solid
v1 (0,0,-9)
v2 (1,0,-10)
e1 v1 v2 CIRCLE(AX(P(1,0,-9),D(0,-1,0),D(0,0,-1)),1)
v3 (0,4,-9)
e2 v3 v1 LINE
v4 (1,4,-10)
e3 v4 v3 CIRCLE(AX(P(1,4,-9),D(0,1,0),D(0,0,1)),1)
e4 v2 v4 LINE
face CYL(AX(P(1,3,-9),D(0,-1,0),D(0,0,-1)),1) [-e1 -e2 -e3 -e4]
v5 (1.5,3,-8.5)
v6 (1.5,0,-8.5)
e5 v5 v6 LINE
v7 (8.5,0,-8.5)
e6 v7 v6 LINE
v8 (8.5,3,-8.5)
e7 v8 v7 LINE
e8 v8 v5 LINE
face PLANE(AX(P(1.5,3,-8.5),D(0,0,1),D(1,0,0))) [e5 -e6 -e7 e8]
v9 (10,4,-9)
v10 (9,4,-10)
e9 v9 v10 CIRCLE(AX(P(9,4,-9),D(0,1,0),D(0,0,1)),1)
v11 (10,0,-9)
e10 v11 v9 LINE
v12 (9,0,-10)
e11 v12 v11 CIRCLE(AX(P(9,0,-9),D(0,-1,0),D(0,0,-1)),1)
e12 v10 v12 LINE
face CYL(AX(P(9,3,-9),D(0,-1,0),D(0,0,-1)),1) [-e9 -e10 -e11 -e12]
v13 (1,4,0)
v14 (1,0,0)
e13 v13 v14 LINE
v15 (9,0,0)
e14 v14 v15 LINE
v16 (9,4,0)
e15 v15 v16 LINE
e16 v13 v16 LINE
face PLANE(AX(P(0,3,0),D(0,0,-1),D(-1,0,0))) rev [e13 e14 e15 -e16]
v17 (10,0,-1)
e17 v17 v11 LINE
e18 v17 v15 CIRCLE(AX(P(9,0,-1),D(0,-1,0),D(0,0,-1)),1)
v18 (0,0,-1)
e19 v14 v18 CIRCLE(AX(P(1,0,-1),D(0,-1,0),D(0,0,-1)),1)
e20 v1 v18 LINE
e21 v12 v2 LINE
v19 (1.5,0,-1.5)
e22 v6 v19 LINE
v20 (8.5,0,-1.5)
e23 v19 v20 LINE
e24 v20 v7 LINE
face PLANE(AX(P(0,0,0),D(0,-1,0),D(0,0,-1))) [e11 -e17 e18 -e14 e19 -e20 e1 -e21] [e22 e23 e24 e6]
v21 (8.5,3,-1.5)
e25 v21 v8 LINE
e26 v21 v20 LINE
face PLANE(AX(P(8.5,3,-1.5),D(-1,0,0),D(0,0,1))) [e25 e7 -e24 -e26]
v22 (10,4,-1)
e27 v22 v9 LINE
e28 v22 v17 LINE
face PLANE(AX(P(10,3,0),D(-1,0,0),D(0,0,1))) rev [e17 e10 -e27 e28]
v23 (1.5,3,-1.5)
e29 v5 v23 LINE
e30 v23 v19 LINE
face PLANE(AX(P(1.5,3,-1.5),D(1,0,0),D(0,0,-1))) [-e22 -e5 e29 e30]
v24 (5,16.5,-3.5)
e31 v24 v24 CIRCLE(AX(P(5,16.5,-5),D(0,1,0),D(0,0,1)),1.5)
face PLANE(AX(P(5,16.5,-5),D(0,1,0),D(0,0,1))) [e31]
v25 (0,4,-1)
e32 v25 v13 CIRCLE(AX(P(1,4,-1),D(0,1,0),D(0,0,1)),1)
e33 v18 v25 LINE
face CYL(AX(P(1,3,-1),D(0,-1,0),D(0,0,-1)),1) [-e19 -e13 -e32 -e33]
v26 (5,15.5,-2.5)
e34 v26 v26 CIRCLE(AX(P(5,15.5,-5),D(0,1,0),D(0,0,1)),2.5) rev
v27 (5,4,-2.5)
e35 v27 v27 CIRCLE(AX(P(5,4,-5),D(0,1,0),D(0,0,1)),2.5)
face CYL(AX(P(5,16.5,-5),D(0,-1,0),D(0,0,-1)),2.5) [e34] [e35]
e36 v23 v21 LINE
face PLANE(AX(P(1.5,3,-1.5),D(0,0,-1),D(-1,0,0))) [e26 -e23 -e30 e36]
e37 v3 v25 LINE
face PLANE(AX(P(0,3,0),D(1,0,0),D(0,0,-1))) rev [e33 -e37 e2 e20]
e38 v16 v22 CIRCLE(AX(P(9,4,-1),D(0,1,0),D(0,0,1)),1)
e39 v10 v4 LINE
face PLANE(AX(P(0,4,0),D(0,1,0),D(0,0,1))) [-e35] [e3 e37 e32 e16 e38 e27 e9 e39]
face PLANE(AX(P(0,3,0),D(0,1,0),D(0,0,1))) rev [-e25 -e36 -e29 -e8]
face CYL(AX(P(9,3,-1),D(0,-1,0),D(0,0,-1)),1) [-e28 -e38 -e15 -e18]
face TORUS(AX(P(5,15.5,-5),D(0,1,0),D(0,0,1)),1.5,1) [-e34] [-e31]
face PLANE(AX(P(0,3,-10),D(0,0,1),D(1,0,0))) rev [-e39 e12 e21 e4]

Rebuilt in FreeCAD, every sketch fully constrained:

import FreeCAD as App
import Part
import Sketcher
from FreeCAD import Vector


def edges_at(feature, points):
    """Names of the edges that pass closest to the given points."""
    edges = feature.Shape.Edges
    near = lambda p: min(range(len(edges)), key=lambda i: edges[i].distToShape(Part.Vertex(*p))[0])
    return sorted({f"Edge{near(p) + 1}" for p in points})


def add_polygon(sketch, points):
    """Adds a closed chain of lines whose ends are joined by coincident constraints."""
    first, n = sketch.GeometryCount, len(points)
    for a, b in zip(points, points[1:] + points[:1]):
        sketch.addGeometry(Part.LineSegment(App.Vector(*a, 0), App.Vector(*b, 0)), False)
    for i in range(n):
        sketch.addConstraint(Sketcher.Constraint("Coincident", first + i, 2, first + (i + 1) % n, 1))

doc = App.newDocument("Part")
params = doc.addObject("Spreadsheet::Sheet", "Params")
for row, (alias, value) in enumerate([
    ("sketch1_width", "10 mm"),
    ("sketch1_width2", "7 mm"),
    ("pad1_length", "3 mm"),
    ("sketch2_width", "10 mm"),
    ("pad2_length", "1 mm"),
    ("sketch3_diameter", "5 mm"),
    ("pad3_length", "12.5 mm"),
    ("fillet_radius", "1 mm"),
], start=1):
    params.set(f"A{row}", alias)
    params.set(f"B{row}", "=" + value)
    params.setAlias(f"B{row}", alias)

body = doc.addObject("PartDesign::Body", "Body")

# Sketch on XZ plane
sketch1 = body.newObject("Sketcher::SketchObject", "Sketch")
sketch1.AttachmentSupport = (doc.getObject("XZ_Plane"), [""])
sketch1.MapMode = "FlatFace"
add_polygon(sketch1, [(0, -10), (0, 0), (10, 0), (10, -10)])  # lines 0-3
add_polygon(sketch1, [(8, -2), (2, -2), (2, -8), (8, -8)])  # lines 4-7
sketch1.addConstraint([
    Sketcher.Constraint("Vertical", 0),
    Sketcher.Constraint("Horizontal", 1),
    Sketcher.Constraint("Vertical", 2),
    Sketcher.Constraint("Horizontal", 3),
    Sketcher.Constraint("Horizontal", 4),
    Sketcher.Constraint("Vertical", 5),
    Sketcher.Constraint("Horizontal", 6),
    Sketcher.Constraint("Vertical", 7),
    Sketcher.Constraint("Coincident", 0, 2, -1, 1),
    Sketcher.Constraint("Equal", 3, 0),
    Sketcher.Constraint("Equal", 6, 5),
    Sketcher.Constraint("DistanceX", 1, 1, 1, 2, 10.0),
    Sketcher.Constraint("DistanceX", 4, 2, 4, 1, 7.0),
    Sketcher.Constraint("DistanceX", -1, 1, 4, 2, 1.5),
    Sketcher.Constraint("DistanceY", 4, 2, -1, 1, 1.5),
])
sketch1.setExpression("Constraints[19]", "Params.sketch1_width")
sketch1.setExpression("Constraints[20]", "Params.sketch1_width2")
pad1 = body.newObject("PartDesign::Pad", "Pad")
pad1.Profile = sketch1
pad1.setExpression("Length", "Params.pad1_length")
pad1.Reversed = True

# Sketch on XZ plane
sketch2 = body.newObject("Sketcher::SketchObject", "Sketch001")
sketch2.AttachmentSupport = (doc.getObject("XZ_Plane"), [""])
sketch2.MapMode = "FlatFace"
sketch2.AttachmentOffset = App.Placement(Vector(0, 0, -3), App.Rotation())
add_polygon(sketch2, [(0, -10), (0, 0), (10, 0), (10, -10)])  # lines 0-3
sketch2.addConstraint([
    Sketcher.Constraint("Vertical", 0),
    Sketcher.Constraint("Horizontal", 1),
    Sketcher.Constraint("Vertical", 2),
    Sketcher.Constraint("Horizontal", 3),
    Sketcher.Constraint("Coincident", 0, 2, -1, 1),
    Sketcher.Constraint("Equal", 3, 0),
    Sketcher.Constraint("DistanceX", 1, 1, 1, 2, 10.0),
])
sketch2.setExpression("Constraints[10]", "Params.sketch2_width")
pad2 = body.newObject("PartDesign::Pad", "Pad001")
pad2.Profile = sketch2
pad2.setExpression("Length", "Params.pad2_length")
pad2.Reversed = True

# Sketch on XZ plane
sketch3 = body.newObject("Sketcher::SketchObject", "Sketch002")
sketch3.AttachmentSupport = (doc.getObject("XZ_Plane"), [""])
sketch3.MapMode = "FlatFace"
sketch3.AttachmentOffset = App.Placement(Vector(0, 0, -4), App.Rotation())
sketch3.addGeometry(Part.Circle(Vector(5, -5, 0), Vector(0, 0, 1), 2.5), False)
sketch3.addConstraint([
    Sketcher.Constraint("Diameter", 0, 5.0),
    Sketcher.Constraint("DistanceX", -1, 1, 0, 3, 5.0),
    Sketcher.Constraint("DistanceY", 0, 3, -1, 1, 5.0),
])
sketch3.setExpression("Constraints[0]", "Params.sketch3_diameter")
pad3 = body.newObject("PartDesign::Pad", "Pad002")
pad3.Profile = sketch3
pad3.setExpression("Length", "Params.pad3_length")
pad3.Reversed = True
doc.recompute()

fillet = body.newObject("PartDesign::Fillet", "Fillet")
fillet.Base = (pad3, edges_at(pad3, [
    (2.5, 16.5, -5),
    (0, 2, -10),
    (10, 2, -10),
    (10, 2, 0),
    (0, 2, 0),
]))
fillet.setExpression("Radius", "Params.fillet_radius")

doc.recompute()
